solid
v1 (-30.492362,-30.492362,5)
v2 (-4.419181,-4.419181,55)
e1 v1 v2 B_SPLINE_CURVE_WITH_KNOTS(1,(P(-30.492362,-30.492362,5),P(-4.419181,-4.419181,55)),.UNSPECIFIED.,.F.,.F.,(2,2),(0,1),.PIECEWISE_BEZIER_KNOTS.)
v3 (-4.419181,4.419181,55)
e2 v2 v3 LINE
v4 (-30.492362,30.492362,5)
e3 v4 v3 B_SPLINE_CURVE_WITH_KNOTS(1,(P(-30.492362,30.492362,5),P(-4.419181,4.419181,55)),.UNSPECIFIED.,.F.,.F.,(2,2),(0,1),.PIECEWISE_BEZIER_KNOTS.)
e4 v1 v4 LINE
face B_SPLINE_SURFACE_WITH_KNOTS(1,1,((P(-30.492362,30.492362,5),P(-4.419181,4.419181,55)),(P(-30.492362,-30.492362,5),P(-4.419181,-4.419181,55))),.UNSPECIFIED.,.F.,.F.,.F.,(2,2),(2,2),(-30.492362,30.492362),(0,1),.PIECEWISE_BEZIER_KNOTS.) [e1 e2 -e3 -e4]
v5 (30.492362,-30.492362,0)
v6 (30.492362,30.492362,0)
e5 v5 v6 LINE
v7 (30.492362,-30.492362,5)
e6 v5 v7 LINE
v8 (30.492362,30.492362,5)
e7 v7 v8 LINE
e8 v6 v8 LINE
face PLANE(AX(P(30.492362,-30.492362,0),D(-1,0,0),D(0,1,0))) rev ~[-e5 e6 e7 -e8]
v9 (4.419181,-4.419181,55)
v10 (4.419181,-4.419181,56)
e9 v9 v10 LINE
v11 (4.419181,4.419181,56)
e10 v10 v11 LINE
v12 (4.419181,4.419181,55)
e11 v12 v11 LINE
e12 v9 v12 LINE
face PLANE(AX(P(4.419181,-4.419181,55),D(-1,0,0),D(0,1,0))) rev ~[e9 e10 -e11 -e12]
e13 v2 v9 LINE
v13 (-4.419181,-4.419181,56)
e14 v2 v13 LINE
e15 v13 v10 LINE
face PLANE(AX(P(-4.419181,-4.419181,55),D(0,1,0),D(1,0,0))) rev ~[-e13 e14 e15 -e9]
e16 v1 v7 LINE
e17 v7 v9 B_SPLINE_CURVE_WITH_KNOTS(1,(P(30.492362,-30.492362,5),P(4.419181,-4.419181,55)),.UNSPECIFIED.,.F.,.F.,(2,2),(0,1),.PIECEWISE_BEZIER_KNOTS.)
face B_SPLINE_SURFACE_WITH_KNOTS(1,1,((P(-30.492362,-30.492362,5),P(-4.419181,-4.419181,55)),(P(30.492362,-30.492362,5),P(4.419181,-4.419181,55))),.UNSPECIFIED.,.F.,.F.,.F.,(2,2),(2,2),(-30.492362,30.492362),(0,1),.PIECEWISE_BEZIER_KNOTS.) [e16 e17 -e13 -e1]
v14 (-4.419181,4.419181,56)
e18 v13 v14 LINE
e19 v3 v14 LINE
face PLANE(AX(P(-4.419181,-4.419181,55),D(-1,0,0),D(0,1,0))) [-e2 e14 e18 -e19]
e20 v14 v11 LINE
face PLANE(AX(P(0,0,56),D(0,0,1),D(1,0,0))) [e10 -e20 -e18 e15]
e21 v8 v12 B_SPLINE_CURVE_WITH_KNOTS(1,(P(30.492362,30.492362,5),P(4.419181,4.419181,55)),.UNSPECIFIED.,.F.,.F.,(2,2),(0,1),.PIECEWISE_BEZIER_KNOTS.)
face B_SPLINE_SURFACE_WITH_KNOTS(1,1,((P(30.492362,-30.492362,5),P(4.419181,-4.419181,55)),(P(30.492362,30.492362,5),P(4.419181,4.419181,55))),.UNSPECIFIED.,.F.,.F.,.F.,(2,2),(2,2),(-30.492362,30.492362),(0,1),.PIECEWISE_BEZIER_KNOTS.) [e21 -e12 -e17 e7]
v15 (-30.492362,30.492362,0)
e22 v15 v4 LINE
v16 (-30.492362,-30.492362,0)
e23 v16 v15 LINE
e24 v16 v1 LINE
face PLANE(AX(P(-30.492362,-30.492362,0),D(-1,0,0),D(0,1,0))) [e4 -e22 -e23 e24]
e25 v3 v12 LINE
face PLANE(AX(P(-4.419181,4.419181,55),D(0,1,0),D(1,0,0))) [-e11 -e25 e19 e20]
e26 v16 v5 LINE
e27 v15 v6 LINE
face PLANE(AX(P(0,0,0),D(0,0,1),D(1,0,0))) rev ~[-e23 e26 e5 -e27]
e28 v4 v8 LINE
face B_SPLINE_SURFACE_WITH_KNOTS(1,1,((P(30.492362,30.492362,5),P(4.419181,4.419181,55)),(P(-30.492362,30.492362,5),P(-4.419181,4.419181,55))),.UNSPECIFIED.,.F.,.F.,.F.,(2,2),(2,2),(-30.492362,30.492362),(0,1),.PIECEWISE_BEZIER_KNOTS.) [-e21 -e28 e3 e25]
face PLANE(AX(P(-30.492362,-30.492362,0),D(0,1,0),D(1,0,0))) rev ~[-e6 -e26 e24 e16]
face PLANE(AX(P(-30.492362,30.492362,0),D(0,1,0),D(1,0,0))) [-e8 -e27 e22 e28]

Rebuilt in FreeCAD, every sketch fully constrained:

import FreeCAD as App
import Part
import Sketcher

doc = App.newDocument("Part")
body = doc.addObject("PartDesign::Body", "Body")

sketch1 = doc.addObject("Sketcher::SketchObject", "Sketch")
body.addObject(sketch1)
sketch1.AttachmentSupport = (doc.XY_Plane, [""])
sketch1.MapMode = "FlatFace"
sketch1.addGeometry(Part.LineSegment(App.Vector(-30, 30, 0), App.Vector(-30, -30, 0)), False)
sketch1.addGeometry(Part.LineSegment(App.Vector(-30, -30, 0), App.Vector(30, -30, 0)), False)
sketch1.addGeometry(Part.LineSegment(App.Vector(30, -30, 0), App.Vector(30, 30, 0)), False)
sketch1.addGeometry(Part.LineSegment(App.Vector(30, 30, 0), App.Vector(-30, 30, 0)), False)
sketch1.addConstraint(Sketcher.Constraint("Coincident", 0, 2, 1, 1))
sketch1.addConstraint(Sketcher.Constraint("Coincident", 1, 2, 2, 1))
sketch1.addConstraint(Sketcher.Constraint("Coincident", 2, 2, 3, 1))
sketch1.addConstraint(Sketcher.Constraint("Coincident", 3, 2, 0, 1))
sketch1.addConstraint(Sketcher.Constraint("Vertical", 0))
sketch1.addConstraint(Sketcher.Constraint("Horizontal", 1))
sketch1.addConstraint(Sketcher.Constraint("Vertical", 2))
sketch1.addConstraint(Sketcher.Constraint("Horizontal", 3))
sketch1.addConstraint(Sketcher.Constraint("Symmetric", 0, 2, 2, 2, -1, 1))
sketch1.addConstraint(Sketcher.Constraint("Equal", 3, 0))
sketch1.addConstraint(Sketcher.Constraint("DistanceX", 1, 1, 1, 2, 60.984724))
pad1 = doc.addObject("PartDesign::Pad", "Pad")
body.addObject(pad1)
pad1.Profile = sketch1
pad1.Length = 5
body2 = doc.addObject("PartDesign::Body", "Body001")

sketch2 = doc.addObject("Sketcher::SketchObject", "Sketch001")
body2.addObject(sketch2)
sketch2.AttachmentSupport = (doc.getObject("XY_Plane001"), [""])
sketch2.MapMode = "FlatFace"
sketch2.AttachmentOffset = App.Placement(App.Vector(0, 0, 55), App.Rotation())
sketch2.addGeometry(Part.LineSegment(App.Vector(-4, 4, 0), App.Vector(-4, -4, 0)), False)
sketch2.addGeometry(Part.LineSegment(App.Vector(-4, -4, 0), App.Vector(4, -4, 0)), False)
sketch2.addGeometry(Part.LineSegment(App.Vector(4, -4, 0), App.Vector(4, 4, 0)), False)
sketch2.addGeometry(Part.LineSegment(App.Vector(4, 4, 0), App.Vector(-4, 4, 0)), False)
sketch2.addConstraint(Sketcher.Constraint("Coincident", 0, 2, 1, 1))
sketch2.addConstraint(Sketcher.Constraint("Coincident", 1, 2, 2, 1))
sketch2.addConstraint(Sketcher.Constraint("Coincident", 2, 2, 3, 1))
sketch2.addConstraint(Sketcher.Constraint("Coincident", 3, 2, 0, 1))
sketch2.addConstraint(Sketcher.Constraint("Vertical", 0))
sketch2.addConstraint(Sketcher.Constraint("Horizontal", 1))
sketch2.addConstraint(Sketcher.Constraint("Vertical", 2))
sketch2.addConstraint(Sketcher.Constraint("Horizontal", 3))
sketch2.addConstraint(Sketcher.Constraint("Symmetric", 0, 2, 2, 2, -1, 1))
sketch2.addConstraint(Sketcher.Constraint("Equal", 3, 0))
sketch2.addConstraint(Sketcher.Constraint("DistanceX", 1, 1, 1, 2, 8.838362))
pad2 = doc.addObject("PartDesign::Pad", "Pad001")
body2.addObject(pad2)
pad2.Profile = sketch2
pad2.Length = 1
body.AllowCompound = True
doc.recompute()

boolean = doc.addObject("PartDesign::Boolean", "Boolean")
body.addObject(boolean)
boolean.Type = "Fuse"
boolean.addObjects([body2])

sketch3 = doc.addObject("Sketcher::SketchObject", "Sketch002")
body.addObject(sketch3)
sketch3.AttachmentSupport = (doc.XY_Plane, [""])
sketch3.MapMode = "FlatFace"
sketch3.AttachmentOffset = App.Placement(App.Vector(0, 0, 5), App.Rotation())
sketch3.addGeometry(Part.LineSegment(App.Vector(-30, 30, 0), App.Vector(-30, -30, 0)), False)
sketch3.addGeometry(Part.LineSegment(App.Vector(-30, -30, 0), App.Vector(30, -30, 0)), False)
sketch3.addGeometry(Part.LineSegment(App.Vector(30, -30, 0), App.Vector(30, 30, 0)), False)
sketch3.addGeometry(Part.LineSegment(App.Vector(30, 30, 0), App.Vector(-30, 30, 0)), False)
sketch3.addConstraint(Sketcher.Constraint("Coincident", 0, 2, 1, 1))
sketch3.addConstraint(Sketcher.Constraint("Coincident", 1, 2, 2, 1))
sketch3.addConstraint(Sketcher.Constraint("Coincident", 2, 2, 3, 1))
sketch3.addConstraint(Sketcher.Constraint("Coincident", 3, 2, 0, 1))
sketch3.addConstraint(Sketcher.Constraint("Vertical", 0))
sketch3.addConstraint(Sketcher.Constraint("Horizontal", 1))
sketch3.addConstraint(Sketcher.Constraint("Vertical", 2))
sketch3.addConstraint(Sketcher.Constraint("Horizontal", 3))
sketch3.addConstraint(Sketcher.Constraint("Symmetric", 0, 2, 2, 2, -1, 1))
sketch3.addConstraint(Sketcher.Constraint("Equal", 3, 0))
sketch3.addConstraint(Sketcher.Constraint("DistanceX", 1, 1, 1, 2, 60.984724))

sketch4 = doc.addObject("Sketcher::SketchObject", "Sketch003")
body.addObject(sketch4)
sketch4.AttachmentSupport = (doc.XY_Plane, [""])
sketch4.MapMode = "FlatFace"
sketch4.AttachmentOffset = App.Placement(App.Vector(0, 0, 55), App.Rotation())
sketch4.addGeometry(Part.LineSegment(App.Vector(-4, -4, 0), App.Vector(-4, 4, 0)), False)
sketch4.addGeometry(Part.LineSegment(App.Vector(-4, 4, 0), App.Vector(4, 4, 0)), False)
sketch4.addGeometry(Part.LineSegment(App.Vector(4, 4, 0), App.Vector(4, -4, 0)), False)
sketch4.addGeometry(Part.LineSegment(App.Vector(4, -4, 0), App.Vector(-4, -4, 0)), False)
sketch4.addConstraint(Sketcher.Constraint("Coincident", 0, 2, 1, 1))
sketch4.addConstraint(Sketcher.Constraint("Coincident", 1, 2, 2, 1))
sketch4.addConstraint(Sketcher.Constraint("Coincident", 2, 2, 3, 1))
sketch4.addConstraint(Sketcher.Constraint("Coincident", 3, 2, 0, 1))
sketch4.addConstraint(Sketcher.Constraint("Vertical", 0))
sketch4.addConstraint(Sketcher.Constraint("Horizontal", 1))
sketch4.addConstraint(Sketcher.Constraint("Vertical", 2))
sketch4.addConstraint(Sketcher.Constraint("Horizontal", 3))
sketch4.addConstraint(Sketcher.Constraint("Symmetric", 0, 2, 2, 2, -1, 1))
sketch4.addConstraint(Sketcher.Constraint("Equal", 3, 0))
sketch4.addConstraint(Sketcher.Constraint("DistanceX", 1, 1, 1, 2, 8.838362))

additiveloft = doc.addObject("PartDesign::AdditiveLoft", "AdditiveLoft")
body.addObject(additiveloft)
additiveloft.Profile = sketch3
additiveloft.Sections = [sketch4]

doc.recompute()
